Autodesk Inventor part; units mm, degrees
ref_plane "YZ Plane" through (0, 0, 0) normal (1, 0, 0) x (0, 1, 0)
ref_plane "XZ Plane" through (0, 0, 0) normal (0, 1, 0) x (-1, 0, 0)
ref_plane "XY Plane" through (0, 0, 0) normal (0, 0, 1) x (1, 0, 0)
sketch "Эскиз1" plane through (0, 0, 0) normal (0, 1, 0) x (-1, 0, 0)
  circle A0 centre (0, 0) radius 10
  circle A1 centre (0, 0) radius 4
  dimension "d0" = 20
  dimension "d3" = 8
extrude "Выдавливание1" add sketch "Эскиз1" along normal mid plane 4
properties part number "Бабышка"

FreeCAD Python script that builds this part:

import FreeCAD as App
import Part
import Sketcher
from FreeCAD import Vector
Q = App.Units.Quantity

doc = App.newDocument("Part")
body = doc.addObject("PartDesign::Body", "Body")

# Sketch on XZ plane
sketch1 = body.newObject("Sketcher::SketchObject", "Sketch")
sketch1.AttachmentSupport = (doc.getObject("XZ_Plane"), [""])
sketch1.MapMode = "FlatFace"
sketch1.addGeometry(Part.Circle(Vector(0, 0, 0), Vector(0, 0, 1), 10), False)
sketch1.addGeometry(Part.Circle(Vector(0, 0, 0), Vector(0, 0, 1), 4), False)
sketch1.addConstraint(Sketcher.Constraint("Coincident", 0, 3, -1, 1))
sketch1.addConstraint(Sketcher.Constraint("Coincident", 1, 3, -1, 1))
sketch1.addConstraint(Sketcher.Constraint("Diameter", 0, Q("20 mm")))
sketch1.addConstraint(Sketcher.Constraint("Diameter", 1, Q("8 mm")))
pad1 = body.newObject("PartDesign::Pad", "Pad")
pad1.Profile = sketch1
pad1.Length = 4
pad1.Midplane = True

doc.recompute()
